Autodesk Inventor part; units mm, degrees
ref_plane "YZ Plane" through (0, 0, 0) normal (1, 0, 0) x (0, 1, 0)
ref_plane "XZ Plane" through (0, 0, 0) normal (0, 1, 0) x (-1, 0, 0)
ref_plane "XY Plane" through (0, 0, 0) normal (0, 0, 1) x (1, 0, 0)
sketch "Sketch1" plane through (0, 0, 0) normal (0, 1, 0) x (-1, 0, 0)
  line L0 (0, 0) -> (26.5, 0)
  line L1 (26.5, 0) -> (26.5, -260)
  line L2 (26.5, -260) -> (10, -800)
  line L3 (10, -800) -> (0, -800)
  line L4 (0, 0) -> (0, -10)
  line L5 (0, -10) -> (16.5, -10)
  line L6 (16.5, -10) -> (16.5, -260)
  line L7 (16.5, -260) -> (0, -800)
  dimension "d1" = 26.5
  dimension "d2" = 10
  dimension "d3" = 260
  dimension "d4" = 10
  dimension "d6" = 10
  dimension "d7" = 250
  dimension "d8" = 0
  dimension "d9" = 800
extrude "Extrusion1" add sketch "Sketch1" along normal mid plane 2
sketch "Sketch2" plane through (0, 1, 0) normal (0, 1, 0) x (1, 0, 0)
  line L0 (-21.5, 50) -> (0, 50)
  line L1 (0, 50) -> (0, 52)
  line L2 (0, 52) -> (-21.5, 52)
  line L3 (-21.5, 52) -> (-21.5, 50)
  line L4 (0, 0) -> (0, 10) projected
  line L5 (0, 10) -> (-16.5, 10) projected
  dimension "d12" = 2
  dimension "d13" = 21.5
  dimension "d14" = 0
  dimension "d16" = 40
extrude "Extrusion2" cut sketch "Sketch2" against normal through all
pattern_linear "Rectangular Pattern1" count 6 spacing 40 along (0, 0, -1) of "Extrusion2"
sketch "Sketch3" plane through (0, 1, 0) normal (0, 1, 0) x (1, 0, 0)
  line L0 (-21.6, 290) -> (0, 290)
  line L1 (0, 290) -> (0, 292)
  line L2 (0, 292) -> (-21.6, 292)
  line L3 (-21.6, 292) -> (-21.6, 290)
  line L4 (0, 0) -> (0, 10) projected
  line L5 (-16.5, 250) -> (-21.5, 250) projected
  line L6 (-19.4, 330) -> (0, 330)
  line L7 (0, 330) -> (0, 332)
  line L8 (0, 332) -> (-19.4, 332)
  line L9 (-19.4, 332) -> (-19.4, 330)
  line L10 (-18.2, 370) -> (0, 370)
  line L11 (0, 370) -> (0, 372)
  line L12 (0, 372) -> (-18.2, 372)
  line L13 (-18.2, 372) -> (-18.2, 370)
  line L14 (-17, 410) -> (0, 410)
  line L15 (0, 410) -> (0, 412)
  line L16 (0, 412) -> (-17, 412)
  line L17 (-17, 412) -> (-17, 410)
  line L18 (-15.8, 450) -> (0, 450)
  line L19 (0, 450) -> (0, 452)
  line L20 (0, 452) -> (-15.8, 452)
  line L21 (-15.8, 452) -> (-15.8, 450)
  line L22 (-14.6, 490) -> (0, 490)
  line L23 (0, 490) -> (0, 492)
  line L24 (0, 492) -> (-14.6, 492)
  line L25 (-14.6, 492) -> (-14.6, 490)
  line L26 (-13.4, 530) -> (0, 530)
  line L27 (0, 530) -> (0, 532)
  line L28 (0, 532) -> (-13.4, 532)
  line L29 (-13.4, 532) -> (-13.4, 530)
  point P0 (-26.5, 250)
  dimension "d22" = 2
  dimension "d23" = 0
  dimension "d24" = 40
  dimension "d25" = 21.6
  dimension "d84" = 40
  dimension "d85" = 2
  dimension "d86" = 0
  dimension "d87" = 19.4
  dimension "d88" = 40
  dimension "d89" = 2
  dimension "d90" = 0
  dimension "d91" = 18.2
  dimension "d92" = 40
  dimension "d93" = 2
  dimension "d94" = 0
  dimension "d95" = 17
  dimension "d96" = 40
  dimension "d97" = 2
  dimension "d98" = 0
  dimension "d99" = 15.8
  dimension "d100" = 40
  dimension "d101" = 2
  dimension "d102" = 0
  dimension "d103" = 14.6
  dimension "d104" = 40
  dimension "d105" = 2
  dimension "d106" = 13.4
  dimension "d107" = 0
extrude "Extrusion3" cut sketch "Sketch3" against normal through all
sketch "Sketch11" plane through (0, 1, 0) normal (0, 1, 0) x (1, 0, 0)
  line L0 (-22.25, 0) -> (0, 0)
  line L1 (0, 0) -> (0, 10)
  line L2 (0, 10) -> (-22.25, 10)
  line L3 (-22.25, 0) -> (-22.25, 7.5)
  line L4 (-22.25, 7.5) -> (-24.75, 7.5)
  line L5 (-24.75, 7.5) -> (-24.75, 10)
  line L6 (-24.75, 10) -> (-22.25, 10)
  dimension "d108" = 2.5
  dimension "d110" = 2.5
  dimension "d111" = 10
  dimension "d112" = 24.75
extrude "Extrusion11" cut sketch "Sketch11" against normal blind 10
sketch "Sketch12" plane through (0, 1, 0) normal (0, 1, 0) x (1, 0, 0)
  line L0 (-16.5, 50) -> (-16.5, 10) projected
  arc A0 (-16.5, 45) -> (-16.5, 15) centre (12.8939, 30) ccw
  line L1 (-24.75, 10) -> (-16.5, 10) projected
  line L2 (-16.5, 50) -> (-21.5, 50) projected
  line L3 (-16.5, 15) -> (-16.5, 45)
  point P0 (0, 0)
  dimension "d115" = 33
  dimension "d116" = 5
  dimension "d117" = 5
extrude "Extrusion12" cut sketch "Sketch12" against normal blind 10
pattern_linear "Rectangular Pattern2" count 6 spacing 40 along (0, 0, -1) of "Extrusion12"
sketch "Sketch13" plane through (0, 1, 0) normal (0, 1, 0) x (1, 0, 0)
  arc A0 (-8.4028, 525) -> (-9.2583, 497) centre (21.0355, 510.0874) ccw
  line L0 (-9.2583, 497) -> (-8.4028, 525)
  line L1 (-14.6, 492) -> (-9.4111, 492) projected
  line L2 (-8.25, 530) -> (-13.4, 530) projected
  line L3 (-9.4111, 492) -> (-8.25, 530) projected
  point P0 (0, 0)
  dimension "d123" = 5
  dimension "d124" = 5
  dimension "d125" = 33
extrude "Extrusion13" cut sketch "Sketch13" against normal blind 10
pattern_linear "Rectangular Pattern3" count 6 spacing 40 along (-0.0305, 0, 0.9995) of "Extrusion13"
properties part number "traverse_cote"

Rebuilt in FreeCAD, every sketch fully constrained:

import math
import FreeCAD as App
import Part
import Sketcher
from FreeCAD import Vector
Q = App.Units.Quantity


def add_polygon(sketch, points):
    """Adds a closed chain of lines whose ends are joined by coincident constraints."""
    first, n = sketch.GeometryCount, len(points)
    for a, b in zip(points, points[1:] + points[:1]):
        sketch.addGeometry(Part.LineSegment(App.Vector(*a, 0), App.Vector(*b, 0)), False)
    for i in range(n):
        sketch.addConstraint(Sketcher.Constraint("Coincident", first + i, 2, first + (i + 1) % n, 1))

doc = App.newDocument("Part")
body = doc.addObject("PartDesign::Body", "Body")

# Sketch on XZ plane
sketch1 = body.newObject("Sketcher::SketchObject", "Sketch")
sketch1.AttachmentSupport = (doc.getObject("XZ_Plane"), [""])
sketch1.MapMode = "FlatFace"
add_polygon(sketch1, [(-26, 0), (0, 0), (0, -10), (-16, -10), (-16, -260), (0, -800), (-10, -800), (-26, -260)])  # lines 0-7
sketch1.addConstraint([
    Sketcher.Constraint("Horizontal", 0),
    Sketcher.Constraint("Vertical", 1),
    Sketcher.Constraint("Horizontal", 2),
    Sketcher.Constraint("Vertical", 3),
    Sketcher.Constraint("Horizontal", 5),
    Sketcher.Constraint("Vertical", 7),
    Sketcher.Constraint("Coincident", 0, 2, -1, 1),
    Sketcher.Constraint("PointOnObject", 4, 2, -2),
    Sketcher.Constraint("Parallel", 4, 6),
    Sketcher.Constraint("Horizontal", 3, 2, 6, 2),
    Sketcher.Constraint("Equal", 5, 1),
    Sketcher.Constraint("DistanceX", 5, 2, 5, 1, 10.0),
    Sketcher.Constraint("DistanceY", 3, 2, 3, 1, 250.0),
    Sketcher.Constraint("DistanceX", 0, 1, 0, 2, 26.5),
    Sketcher.Constraint("DistanceY", 4, 2, -1, 1, 800.0),
])
pad1 = body.newObject("PartDesign::Pad", "Pad")
pad1.Profile = sketch1
pad1.Length = 2
pad1.Midplane = True

# Sketch on XZ plane
sketch2 = body.newObject("Sketcher::SketchObject", "Sketch001")
sketch2.AttachmentSupport = (doc.getObject("XZ_Plane"), [""])
sketch2.MapMode = "FlatFace"
sketch2.AttachmentOffset = App.Placement(Vector(0, 0, -1), App.Rotation())
add_polygon(sketch2, [(-21.5, -52), (-21.5, -50), (0, -50), (0, -52)])  # lines 0-3
sketch2.addConstraint([
    Sketcher.Constraint("Vertical", 0),
    Sketcher.Constraint("Horizontal", 1),
    Sketcher.Constraint("Vertical", 2),
    Sketcher.Constraint("Horizontal", 3),
    Sketcher.Constraint("PointOnObject", 1, 2, -2),
    Sketcher.Constraint("DistanceY", 0, 1, 0, 2, 2.0),
    Sketcher.Constraint("DistanceX", 1, 1, 1, 2, 21.5),
    Sketcher.Constraint("DistanceY", 0, 2, -1, 1, 50.0),
])
pocket1 = body.newObject("PartDesign::Pocket", "Pocket")
pocket1.Profile = sketch2
pocket1.Type = "ThroughAll"
pocket1.Reversed = True
doc.recompute()

linearpattern = body.newObject("PartDesign::LinearPattern", "LinearPattern")
linearpattern.Originals = [pocket1]
linearpattern.Direction = (doc.getObject("Z_Axis"), [""])
linearpattern.Mode = "offset"
linearpattern.Offset = 40
linearpattern.Occurrences = 6
linearpattern.Reversed = True
body.Tip = linearpattern

# Sketch on XZ plane
sketch3 = body.newObject("Sketcher::SketchObject", "Sketch002")
sketch3.AttachmentSupport = (doc.getObject("XZ_Plane"), [""])
sketch3.MapMode = "FlatFace"
sketch3.AttachmentOffset = App.Placement(Vector(0, 0, -1), App.Rotation())
add_polygon(sketch3, [(-21.6, -292), (-21.6, -290), (0, -290), (0, -292)])  # lines 0-3
add_polygon(sketch3, [(-19.4, -332), (-19.4, -330), (0, -330), (0, -332)])  # lines 4-7
add_polygon(sketch3, [(-18.2, -372), (-18.2, -370), (0, -370), (0, -372)])  # lines 8-11
add_polygon(sketch3, [(-17, -412), (-17, -410), (0, -410), (0, -412)])  # lines 12-15
add_polygon(sketch3, [(-15.8, -452), (-15.8, -450), (0, -450), (0, -452)])  # lines 16-19
add_polygon(sketch3, [(-14.6, -492), (-14.6, -490), (0, -490), (0, -492)])  # lines 20-23
add_polygon(sketch3, [(-13.4, -532), (-13.4, -530), (0, -530), (0, -532)])  # lines 24-27
sketch3.addConstraint([
    Sketcher.Constraint("Vertical", 0),
    Sketcher.Constraint("Horizontal", 1),
    Sketcher.Constraint("Vertical", 2),
    Sketcher.Constraint("Horizontal", 3),
    Sketcher.Constraint("Vertical", 4),
    Sketcher.Constraint("Horizontal", 5),
    Sketcher.Constraint("Vertical", 6),
    Sketcher.Constraint("Horizontal", 7),
    Sketcher.Constraint("Vertical", 8),
    Sketcher.Constraint("Horizontal", 9),
    Sketcher.Constraint("Vertical", 10),
    Sketcher.Constraint("Horizontal", 11),
    Sketcher.Constraint("Vertical", 12),
    Sketcher.Constraint("Horizontal", 13),
    Sketcher.Constraint("Vertical", 14),
    Sketcher.Constraint("Horizontal", 15),
    Sketcher.Constraint("Vertical", 16),
    Sketcher.Constraint("Horizontal", 17),
    Sketcher.Constraint("Vertical", 18),
    Sketcher.Constraint("Horizontal", 19),
    Sketcher.Constraint("Vertical", 20),
    Sketcher.Constraint("Horizontal", 21),
    Sketcher.Constraint("Vertical", 22),
    Sketcher.Constraint("Horizontal", 23),
    Sketcher.Constraint("Vertical", 24),
    Sketcher.Constraint("Horizontal", 25),
    Sketcher.Constraint("Vertical", 26),
    Sketcher.Constraint("Horizontal", 27),
    Sketcher.Constraint("PointOnObject", 1, 2, -2),
    Sketcher.Constraint("PointOnObject", 5, 2, -2),
    Sketcher.Constraint("PointOnObject", 9, 2, -2),
    Sketcher.Constraint("PointOnObject", 13, 2, -2),
    Sketcher.Constraint("PointOnObject", 17, 2, -2),
    Sketcher.Constraint("PointOnObject", 21, 2, -2),
    Sketcher.Constraint("PointOnObject", 25, 2, -2),
    Sketcher.Constraint("Equal", 2, 4),
    Sketcher.Constraint("Equal", 6, 8),
    Sketcher.Constraint("Equal", 10, 12),
    Sketcher.Constraint("Equal", 14, 16),
    Sketcher.Constraint("Equal", 18, 20),
    Sketcher.Constraint("Equal", 22, 24),
    Sketcher.Constraint("DistanceX", 13, 1, 13, 2, 17.0),
    Sketcher.Constraint("DistanceY", 0, 1, 0, 2, 2.0),
    Sketcher.Constraint("DistanceX", 1, 1, 1, 2, 21.6),
    Sketcher.Constraint("DistanceX", 5, 1, 5, 2, 19.4),
    Sketcher.Constraint("DistanceX", 9, 1, 9, 2, 18.2),
    Sketcher.Constraint("DistanceX", 17, 1, 17, 2, 15.8),
    Sketcher.Constraint("DistanceX", 21, 1, 21, 2, 14.6),
    Sketcher.Constraint("DistanceX", 25, 1, 25, 2, 13.4),
    Sketcher.Constraint("DistanceY", 4, 2, 0, 2, 40.0),
    Sketcher.Constraint("DistanceY", 8, 2, 4, 2, 40.0),
    Sketcher.Constraint("DistanceY", 12, 2, 8, 2, 40.0),
    Sketcher.Constraint("DistanceY", 16, 2, 12, 2, 40.0),
    Sketcher.Constraint("DistanceY", 20, 2, 16, 2, 40.0),
    Sketcher.Constraint("DistanceY", 24, 2, 20, 2, 40.0),
    Sketcher.Constraint("DistanceY", 0, 2, -1, 1, 290.0),
])
pocket2 = body.newObject("PartDesign::Pocket", "Pocket001")
pocket2.Profile = sketch3
pocket2.Type = "ThroughAll"
pocket2.Reversed = True

# Sketch on XZ plane
sketch4 = body.newObject("Sketcher::SketchObject", "Sketch003")
sketch4.AttachmentSupport = (doc.getObject("XZ_Plane"), [""])
sketch4.MapMode = "FlatFace"
sketch4.AttachmentOffset = App.Placement(Vector(0, 0, -1), App.Rotation())
add_polygon(sketch4, [(-22.2, -7.5), (-22.2, 0), (0, 0), (0, -10), (-24.8, -10), (-24.8, -7.5)])  # lines 0-5
sketch4.addConstraint([
    Sketcher.Constraint("Vertical", 0),
    Sketcher.Constraint("Horizontal", 1),
    Sketcher.Constraint("Vertical", 2),
    Sketcher.Constraint("Horizontal", 3),
    Sketcher.Constraint("Vertical", 4),
    Sketcher.Constraint("Horizontal", 5),
    Sketcher.Constraint("Coincident", 1, 2, -1, 1),
    Sketcher.Constraint("Equal", 5, 4),
    Sketcher.Constraint("DistanceY", 2, 2, 2, 1, 10.0),
    Sketcher.Constraint("DistanceX", 5, 1, 5, 2, 2.5),
    Sketcher.Constraint("DistanceX", 3, 2, 3, 1, 24.75),
])
pocket3 = body.newObject("PartDesign::Pocket", "Pocket002")
pocket3.Profile = sketch4
pocket3.Length = 10
pocket3.Reversed = True

# Sketch on XZ plane
sketch5 = body.newObject("Sketcher::SketchObject", "Sketch004")
sketch5.AttachmentSupport = (doc.getObject("XZ_Plane"), [""])
sketch5.MapMode = "FlatFace"
sketch5.AttachmentOffset = App.Placement(Vector(0, 0, -1), App.Rotation())
sketch5.addGeometry([
    Part.LineSegment(Vector(-16, -15, 0), Vector(-16, -45, 0)),
    Part.ArcOfCircle(Part.Circle(Vector(13, -30, 0), Vector(0, 0, 1), 33), math.radians(153), math.radians(207)),
], False)
sketch5.addConstraint([
    Sketcher.Constraint("Coincident", 0, 1, 1, 1),
    Sketcher.Constraint("Coincident", 1, 2, 0, 2),
    Sketcher.Constraint("Vertical", 0),
    Sketcher.Constraint("Radius", 1, 33.0),
    Sketcher.Constraint("DistanceY", 0, 2, 0, 1, 30.0),
    Sketcher.Constraint("DistanceY", 1, 3, -1, 1, 30.0),
    Sketcher.Constraint("DistanceX", 0, 1, -1, 1, 16.5),
])
pocket4 = body.newObject("PartDesign::Pocket", "Pocket003")
pocket4.Profile = sketch5
pocket4.Length = 10
pocket4.Reversed = True
doc.recompute()

linearpattern2 = body.newObject("PartDesign::LinearPattern", "LinearPattern001")
linearpattern2.Originals = [pocket4]
linearpattern2.Direction = (doc.getObject("Z_Axis"), [""])
linearpattern2.Mode = "offset"
linearpattern2.Offset = 40
linearpattern2.Occurrences = 6
linearpattern2.Reversed = True
body.Tip = linearpattern2

# Sketch on XZ plane
sketch6 = body.newObject("Sketcher::SketchObject", "Sketch005")
sketch6.AttachmentSupport = (doc.getObject("XZ_Plane"), [""])
sketch6.MapMode = "FlatFace"
sketch6.AttachmentOffset = App.Placement(Vector(0, 0, -1), App.Rotation())
sketch6.addGeometry([
    Part.LineSegment(Vector(-9, -497, 0), Vector(-8, -525, 0)),
    Part.ArcOfCircle(Part.Circle(Vector(21, -510, 0), Vector(0, 0, 1), 33), math.radians(157), math.radians(207)),
], False)
sketch6.addConstraint([
    Sketcher.Constraint("Coincident", 0, 1, 1, 1),
    Sketcher.Constraint("Coincident", 1, 2, 0, 2),
    Sketcher.Constraint("Radius", 1, 33.0),
    Sketcher.Constraint("DistanceY", 0, 1, -1, 1, 497.0),
    Sketcher.Constraint("DistanceY", 1, 2, -1, 1, 525.0),
    Sketcher.Constraint("Angle", 0, Q("-88.25 deg")),
    Sketcher.Constraint("DistanceX", -1, 1, 1, 3, 21.0355),
])
pocket5 = body.newObject("PartDesign::Pocket", "Pocket004")
pocket5.Profile = sketch6
pocket5.Length = 10
pocket5.Reversed = True
doc.recompute()

datumline = body.newObject("PartDesign::Line", "DatumLine")
datumline.Placement = App.Placement(Vector(0, 0, 0), App.Rotation(Vector(0, 0, 1), Vector(-0.03050106, 0, 0.999534734)))
linearpattern3 = body.newObject("PartDesign::LinearPattern", "LinearPattern002")
linearpattern3.Originals = [pocket5]
linearpattern3.Direction = (datumline, [""])
linearpattern3.Mode = "offset"
linearpattern3.Offset = 40
linearpattern3.Occurrences = 6
body.Tip = linearpattern3

doc.recompute()
